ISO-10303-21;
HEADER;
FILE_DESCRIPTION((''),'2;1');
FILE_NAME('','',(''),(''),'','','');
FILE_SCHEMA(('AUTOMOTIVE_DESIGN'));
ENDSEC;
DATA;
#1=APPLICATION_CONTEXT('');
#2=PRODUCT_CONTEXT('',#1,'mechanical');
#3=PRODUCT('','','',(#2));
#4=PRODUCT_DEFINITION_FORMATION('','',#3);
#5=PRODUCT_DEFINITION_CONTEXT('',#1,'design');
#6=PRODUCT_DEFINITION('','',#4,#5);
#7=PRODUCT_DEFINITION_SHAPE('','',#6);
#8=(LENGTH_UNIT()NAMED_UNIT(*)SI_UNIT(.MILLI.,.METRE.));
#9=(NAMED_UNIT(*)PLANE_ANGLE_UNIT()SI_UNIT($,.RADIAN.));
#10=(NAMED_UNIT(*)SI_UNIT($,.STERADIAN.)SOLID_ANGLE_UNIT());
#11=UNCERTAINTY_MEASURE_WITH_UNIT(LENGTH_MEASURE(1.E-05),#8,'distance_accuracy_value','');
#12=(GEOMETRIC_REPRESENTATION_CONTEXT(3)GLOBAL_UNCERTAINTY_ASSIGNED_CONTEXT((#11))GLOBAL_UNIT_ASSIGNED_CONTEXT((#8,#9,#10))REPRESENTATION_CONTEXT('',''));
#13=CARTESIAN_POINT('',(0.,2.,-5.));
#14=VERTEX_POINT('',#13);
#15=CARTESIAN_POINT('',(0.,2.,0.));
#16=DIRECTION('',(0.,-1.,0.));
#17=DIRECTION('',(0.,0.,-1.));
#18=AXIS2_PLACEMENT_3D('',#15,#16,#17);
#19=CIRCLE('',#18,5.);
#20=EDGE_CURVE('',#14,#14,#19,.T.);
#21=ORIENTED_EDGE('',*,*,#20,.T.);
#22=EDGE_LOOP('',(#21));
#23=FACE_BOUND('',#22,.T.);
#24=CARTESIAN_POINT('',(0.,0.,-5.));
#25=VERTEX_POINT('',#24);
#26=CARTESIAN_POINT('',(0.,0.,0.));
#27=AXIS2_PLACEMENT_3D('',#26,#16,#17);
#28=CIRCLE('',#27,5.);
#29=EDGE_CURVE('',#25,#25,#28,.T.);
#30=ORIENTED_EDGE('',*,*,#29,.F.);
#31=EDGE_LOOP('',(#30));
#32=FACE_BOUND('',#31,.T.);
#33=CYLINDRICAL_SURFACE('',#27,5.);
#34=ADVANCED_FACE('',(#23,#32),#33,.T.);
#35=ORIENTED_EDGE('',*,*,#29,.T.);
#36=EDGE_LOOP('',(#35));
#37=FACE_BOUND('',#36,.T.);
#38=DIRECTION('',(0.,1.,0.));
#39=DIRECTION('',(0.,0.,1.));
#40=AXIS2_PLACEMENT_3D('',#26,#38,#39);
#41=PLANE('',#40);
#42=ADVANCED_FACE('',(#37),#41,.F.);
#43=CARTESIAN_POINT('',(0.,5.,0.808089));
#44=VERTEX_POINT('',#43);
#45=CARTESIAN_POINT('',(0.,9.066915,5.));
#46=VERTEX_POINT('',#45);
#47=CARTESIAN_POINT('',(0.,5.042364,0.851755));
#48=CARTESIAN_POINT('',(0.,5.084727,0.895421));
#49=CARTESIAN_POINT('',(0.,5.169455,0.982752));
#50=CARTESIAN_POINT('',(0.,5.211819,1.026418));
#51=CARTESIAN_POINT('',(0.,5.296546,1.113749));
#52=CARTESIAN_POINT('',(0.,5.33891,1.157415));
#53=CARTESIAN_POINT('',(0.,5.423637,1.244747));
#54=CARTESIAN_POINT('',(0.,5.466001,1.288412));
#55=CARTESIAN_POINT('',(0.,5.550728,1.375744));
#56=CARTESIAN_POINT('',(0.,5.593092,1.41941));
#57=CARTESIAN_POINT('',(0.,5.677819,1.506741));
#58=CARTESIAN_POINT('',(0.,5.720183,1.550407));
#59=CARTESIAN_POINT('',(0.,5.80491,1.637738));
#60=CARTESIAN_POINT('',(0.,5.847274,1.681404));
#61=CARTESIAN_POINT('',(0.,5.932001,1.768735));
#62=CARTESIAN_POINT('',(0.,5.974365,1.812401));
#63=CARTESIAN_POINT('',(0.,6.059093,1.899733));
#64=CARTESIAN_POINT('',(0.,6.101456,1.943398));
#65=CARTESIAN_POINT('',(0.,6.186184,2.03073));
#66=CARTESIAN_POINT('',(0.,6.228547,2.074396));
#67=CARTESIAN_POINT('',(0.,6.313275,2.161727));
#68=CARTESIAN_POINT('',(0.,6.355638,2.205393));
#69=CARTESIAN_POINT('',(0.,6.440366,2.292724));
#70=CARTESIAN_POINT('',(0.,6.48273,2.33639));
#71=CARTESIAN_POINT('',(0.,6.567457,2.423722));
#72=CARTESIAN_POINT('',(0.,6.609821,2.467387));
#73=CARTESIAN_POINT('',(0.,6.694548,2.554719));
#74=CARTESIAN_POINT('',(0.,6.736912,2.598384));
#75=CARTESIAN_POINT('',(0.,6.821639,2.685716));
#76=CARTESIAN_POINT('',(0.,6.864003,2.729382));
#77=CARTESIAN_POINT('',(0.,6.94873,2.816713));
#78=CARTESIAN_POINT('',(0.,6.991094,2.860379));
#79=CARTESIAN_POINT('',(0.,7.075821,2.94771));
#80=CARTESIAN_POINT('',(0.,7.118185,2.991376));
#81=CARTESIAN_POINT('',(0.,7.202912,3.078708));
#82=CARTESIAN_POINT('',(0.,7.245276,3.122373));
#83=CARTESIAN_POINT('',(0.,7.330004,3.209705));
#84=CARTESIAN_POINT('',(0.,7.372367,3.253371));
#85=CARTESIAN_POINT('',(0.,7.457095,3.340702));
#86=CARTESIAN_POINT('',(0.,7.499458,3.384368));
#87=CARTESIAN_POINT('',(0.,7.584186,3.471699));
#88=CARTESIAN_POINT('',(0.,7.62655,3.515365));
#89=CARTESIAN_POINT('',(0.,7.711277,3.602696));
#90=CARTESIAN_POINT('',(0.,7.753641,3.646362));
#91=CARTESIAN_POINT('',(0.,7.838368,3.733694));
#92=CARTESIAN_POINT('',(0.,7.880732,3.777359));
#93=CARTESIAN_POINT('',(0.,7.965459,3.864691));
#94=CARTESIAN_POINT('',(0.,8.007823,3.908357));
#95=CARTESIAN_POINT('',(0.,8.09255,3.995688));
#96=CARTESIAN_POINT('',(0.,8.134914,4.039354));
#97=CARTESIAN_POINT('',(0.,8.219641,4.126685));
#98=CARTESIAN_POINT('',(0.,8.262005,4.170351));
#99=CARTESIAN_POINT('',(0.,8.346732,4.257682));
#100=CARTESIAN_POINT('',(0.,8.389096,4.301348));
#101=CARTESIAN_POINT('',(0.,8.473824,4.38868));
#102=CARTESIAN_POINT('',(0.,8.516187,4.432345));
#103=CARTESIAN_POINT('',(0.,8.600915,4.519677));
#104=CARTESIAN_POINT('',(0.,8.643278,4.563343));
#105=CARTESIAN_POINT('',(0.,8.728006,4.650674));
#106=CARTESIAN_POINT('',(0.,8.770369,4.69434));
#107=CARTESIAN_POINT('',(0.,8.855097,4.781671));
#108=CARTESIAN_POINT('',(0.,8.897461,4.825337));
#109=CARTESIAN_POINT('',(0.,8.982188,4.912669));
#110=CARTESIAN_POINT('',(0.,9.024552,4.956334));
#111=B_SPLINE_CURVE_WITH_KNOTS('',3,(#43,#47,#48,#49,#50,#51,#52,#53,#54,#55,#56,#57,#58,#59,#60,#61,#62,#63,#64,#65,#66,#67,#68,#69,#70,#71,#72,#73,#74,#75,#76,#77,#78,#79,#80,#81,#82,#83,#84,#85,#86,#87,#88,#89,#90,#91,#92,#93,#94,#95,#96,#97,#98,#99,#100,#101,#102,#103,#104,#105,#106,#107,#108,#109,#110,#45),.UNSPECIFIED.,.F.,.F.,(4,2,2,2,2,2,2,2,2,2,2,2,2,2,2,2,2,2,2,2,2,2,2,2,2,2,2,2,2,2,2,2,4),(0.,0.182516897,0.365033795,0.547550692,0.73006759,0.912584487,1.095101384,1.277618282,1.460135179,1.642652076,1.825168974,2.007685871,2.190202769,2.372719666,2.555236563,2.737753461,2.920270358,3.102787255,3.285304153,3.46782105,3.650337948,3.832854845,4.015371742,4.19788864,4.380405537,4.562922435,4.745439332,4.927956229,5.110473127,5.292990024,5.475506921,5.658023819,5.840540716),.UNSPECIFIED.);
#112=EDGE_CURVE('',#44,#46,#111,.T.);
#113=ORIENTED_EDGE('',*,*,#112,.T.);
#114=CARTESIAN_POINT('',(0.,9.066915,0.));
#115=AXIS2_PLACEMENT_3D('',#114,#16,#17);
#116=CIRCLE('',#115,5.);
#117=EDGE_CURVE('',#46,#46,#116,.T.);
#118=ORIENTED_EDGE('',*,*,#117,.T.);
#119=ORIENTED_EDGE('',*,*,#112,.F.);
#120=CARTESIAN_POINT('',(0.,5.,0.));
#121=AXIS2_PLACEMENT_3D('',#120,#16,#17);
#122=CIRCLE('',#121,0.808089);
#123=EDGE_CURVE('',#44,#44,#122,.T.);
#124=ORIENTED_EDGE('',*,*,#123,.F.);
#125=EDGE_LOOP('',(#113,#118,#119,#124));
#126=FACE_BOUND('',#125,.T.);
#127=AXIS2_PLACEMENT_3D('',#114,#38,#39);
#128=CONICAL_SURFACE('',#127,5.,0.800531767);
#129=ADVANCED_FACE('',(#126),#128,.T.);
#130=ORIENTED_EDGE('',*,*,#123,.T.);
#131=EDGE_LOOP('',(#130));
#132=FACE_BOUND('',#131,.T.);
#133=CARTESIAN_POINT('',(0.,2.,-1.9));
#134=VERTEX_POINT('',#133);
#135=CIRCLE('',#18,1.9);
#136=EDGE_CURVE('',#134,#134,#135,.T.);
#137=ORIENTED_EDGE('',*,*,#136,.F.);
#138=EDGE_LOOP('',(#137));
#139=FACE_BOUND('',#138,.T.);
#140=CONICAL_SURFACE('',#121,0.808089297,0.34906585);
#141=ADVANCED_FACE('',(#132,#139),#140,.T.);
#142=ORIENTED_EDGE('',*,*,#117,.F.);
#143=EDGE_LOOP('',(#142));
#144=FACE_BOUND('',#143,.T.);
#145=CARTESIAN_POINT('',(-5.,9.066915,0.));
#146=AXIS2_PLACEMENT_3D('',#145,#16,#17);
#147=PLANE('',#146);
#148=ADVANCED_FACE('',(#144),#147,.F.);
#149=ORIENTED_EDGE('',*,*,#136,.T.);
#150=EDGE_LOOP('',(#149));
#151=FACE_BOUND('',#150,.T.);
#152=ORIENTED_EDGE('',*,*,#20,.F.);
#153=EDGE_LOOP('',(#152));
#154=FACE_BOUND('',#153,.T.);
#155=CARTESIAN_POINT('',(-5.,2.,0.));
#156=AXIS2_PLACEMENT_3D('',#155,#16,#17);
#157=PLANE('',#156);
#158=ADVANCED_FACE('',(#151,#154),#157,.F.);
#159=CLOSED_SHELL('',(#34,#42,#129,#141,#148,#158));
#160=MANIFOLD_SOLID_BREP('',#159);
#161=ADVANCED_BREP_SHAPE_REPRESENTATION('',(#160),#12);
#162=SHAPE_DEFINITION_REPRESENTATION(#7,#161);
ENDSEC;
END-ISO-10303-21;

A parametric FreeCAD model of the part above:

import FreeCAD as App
import Part
import Sketcher
Q = App.Units.Quantity

doc = App.newDocument("Part")
params = doc.addObject("Spreadsheet::Sheet", "Params")
for row, (alias, value) in enumerate([
    ("sketch1_width", "5 mm"),
    ("sketch1_height", "2 mm"),
    ("sketch1_width2", "3.1 mm"),
    ("revolution_angle", "360 deg"),
], start=1):
    params.set(f"A{row}", alias)
    params.set(f"B{row}", "=" + value)
    params.setAlias(f"B{row}", alias)

body = doc.addObject("PartDesign::Body", "Body")

# Sketch on XY plane
sketch1 = doc.addObject("Sketcher::SketchObject", "Sketch")
body.addObject(sketch1)
sketch1.AttachmentSupport = (doc.XY_Plane, [""])
sketch1.MapMode = "FlatFace"
sketch1.addGeometry(Part.LineSegment(App.Vector(-5, 0, 0), App.Vector(0, 0, 0)), False)
sketch1.addGeometry(Part.LineSegment(App.Vector(0, 0, 0), App.Vector(0, 9.066915, 0)), False)
sketch1.addGeometry(Part.LineSegment(App.Vector(0, 9.066915, 0), App.Vector(-5, 9.066915, 0)), False)
sketch1.addGeometry(Part.LineSegment(App.Vector(-5, 9.066915, 0), App.Vector(-0.808089, 5, 0)), False)
sketch1.addGeometry(Part.LineSegment(App.Vector(-0.808089, 5, 0), App.Vector(-1.9, 2, 0)), False)
sketch1.addGeometry(Part.LineSegment(App.Vector(-1.9, 2, 0), App.Vector(-5, 2, 0)), False)
sketch1.addGeometry(Part.LineSegment(App.Vector(-5, 2, 0), App.Vector(-5, 0, 0)), False)
sketch1.addConstraint(Sketcher.Constraint("Coincident", 0, 2, 1, 1))
sketch1.addConstraint(Sketcher.Constraint("Coincident", 1, 2, 2, 1))
sketch1.addConstraint(Sketcher.Constraint("Coincident", 2, 2, 3, 1))
sketch1.addConstraint(Sketcher.Constraint("Coincident", 3, 2, 4, 1))
sketch1.addConstraint(Sketcher.Constraint("Coincident", 4, 2, 5, 1))
sketch1.addConstraint(Sketcher.Constraint("Coincident", 5, 2, 6, 1))
sketch1.addConstraint(Sketcher.Constraint("Coincident", 6, 2, 0, 1))
sketch1.addConstraint(Sketcher.Constraint("Horizontal", 0))
sketch1.addConstraint(Sketcher.Constraint("Vertical", 1))
sketch1.addConstraint(Sketcher.Constraint("Horizontal", 2))
sketch1.addConstraint(Sketcher.Constraint("Horizontal", 5))
sketch1.addConstraint(Sketcher.Constraint("Vertical", 6))
sketch1.addConstraint(Sketcher.Constraint("Coincident", 0, 2, -1, 1))
sketch1.addConstraint(Sketcher.Constraint("Vertical", 2, 2, 5, 2))
sketch1.addConstraint(Sketcher.Constraint("DistanceX", 0, 1, 0, 2, 5.0))
sketch1.addConstraint(Sketcher.Constraint("DistanceY", 6, 2, 6, 1, 2.0))
sketch1.addConstraint(Sketcher.Constraint("Angle", 4, Q("-110 deg")))
sketch1.addConstraint(Sketcher.Constraint("DistanceX", 5, 2, 5, 1, 3.1))
sketch1.addConstraint(Sketcher.Constraint("DistanceY", -1, 1, 3, 2, 5.0))
sketch1.addConstraint(Sketcher.Constraint("Distance", 3, 5.840541))
sketch1.setExpression("Constraints[14]", "Params.sketch1_width")
sketch1.setExpression("Constraints[15]", "Params.sketch1_height")
sketch1.setExpression("Constraints[17]", "Params.sketch1_width2")
revolution = doc.addObject("PartDesign::Revolution", "Revolution")
body.addObject(revolution)
revolution.Profile = sketch1
revolution.ReferenceAxis = (sketch1, ["V_Axis"])
revolution.setExpression("Angle", "Params.revolution_angle")

doc.recompute()
